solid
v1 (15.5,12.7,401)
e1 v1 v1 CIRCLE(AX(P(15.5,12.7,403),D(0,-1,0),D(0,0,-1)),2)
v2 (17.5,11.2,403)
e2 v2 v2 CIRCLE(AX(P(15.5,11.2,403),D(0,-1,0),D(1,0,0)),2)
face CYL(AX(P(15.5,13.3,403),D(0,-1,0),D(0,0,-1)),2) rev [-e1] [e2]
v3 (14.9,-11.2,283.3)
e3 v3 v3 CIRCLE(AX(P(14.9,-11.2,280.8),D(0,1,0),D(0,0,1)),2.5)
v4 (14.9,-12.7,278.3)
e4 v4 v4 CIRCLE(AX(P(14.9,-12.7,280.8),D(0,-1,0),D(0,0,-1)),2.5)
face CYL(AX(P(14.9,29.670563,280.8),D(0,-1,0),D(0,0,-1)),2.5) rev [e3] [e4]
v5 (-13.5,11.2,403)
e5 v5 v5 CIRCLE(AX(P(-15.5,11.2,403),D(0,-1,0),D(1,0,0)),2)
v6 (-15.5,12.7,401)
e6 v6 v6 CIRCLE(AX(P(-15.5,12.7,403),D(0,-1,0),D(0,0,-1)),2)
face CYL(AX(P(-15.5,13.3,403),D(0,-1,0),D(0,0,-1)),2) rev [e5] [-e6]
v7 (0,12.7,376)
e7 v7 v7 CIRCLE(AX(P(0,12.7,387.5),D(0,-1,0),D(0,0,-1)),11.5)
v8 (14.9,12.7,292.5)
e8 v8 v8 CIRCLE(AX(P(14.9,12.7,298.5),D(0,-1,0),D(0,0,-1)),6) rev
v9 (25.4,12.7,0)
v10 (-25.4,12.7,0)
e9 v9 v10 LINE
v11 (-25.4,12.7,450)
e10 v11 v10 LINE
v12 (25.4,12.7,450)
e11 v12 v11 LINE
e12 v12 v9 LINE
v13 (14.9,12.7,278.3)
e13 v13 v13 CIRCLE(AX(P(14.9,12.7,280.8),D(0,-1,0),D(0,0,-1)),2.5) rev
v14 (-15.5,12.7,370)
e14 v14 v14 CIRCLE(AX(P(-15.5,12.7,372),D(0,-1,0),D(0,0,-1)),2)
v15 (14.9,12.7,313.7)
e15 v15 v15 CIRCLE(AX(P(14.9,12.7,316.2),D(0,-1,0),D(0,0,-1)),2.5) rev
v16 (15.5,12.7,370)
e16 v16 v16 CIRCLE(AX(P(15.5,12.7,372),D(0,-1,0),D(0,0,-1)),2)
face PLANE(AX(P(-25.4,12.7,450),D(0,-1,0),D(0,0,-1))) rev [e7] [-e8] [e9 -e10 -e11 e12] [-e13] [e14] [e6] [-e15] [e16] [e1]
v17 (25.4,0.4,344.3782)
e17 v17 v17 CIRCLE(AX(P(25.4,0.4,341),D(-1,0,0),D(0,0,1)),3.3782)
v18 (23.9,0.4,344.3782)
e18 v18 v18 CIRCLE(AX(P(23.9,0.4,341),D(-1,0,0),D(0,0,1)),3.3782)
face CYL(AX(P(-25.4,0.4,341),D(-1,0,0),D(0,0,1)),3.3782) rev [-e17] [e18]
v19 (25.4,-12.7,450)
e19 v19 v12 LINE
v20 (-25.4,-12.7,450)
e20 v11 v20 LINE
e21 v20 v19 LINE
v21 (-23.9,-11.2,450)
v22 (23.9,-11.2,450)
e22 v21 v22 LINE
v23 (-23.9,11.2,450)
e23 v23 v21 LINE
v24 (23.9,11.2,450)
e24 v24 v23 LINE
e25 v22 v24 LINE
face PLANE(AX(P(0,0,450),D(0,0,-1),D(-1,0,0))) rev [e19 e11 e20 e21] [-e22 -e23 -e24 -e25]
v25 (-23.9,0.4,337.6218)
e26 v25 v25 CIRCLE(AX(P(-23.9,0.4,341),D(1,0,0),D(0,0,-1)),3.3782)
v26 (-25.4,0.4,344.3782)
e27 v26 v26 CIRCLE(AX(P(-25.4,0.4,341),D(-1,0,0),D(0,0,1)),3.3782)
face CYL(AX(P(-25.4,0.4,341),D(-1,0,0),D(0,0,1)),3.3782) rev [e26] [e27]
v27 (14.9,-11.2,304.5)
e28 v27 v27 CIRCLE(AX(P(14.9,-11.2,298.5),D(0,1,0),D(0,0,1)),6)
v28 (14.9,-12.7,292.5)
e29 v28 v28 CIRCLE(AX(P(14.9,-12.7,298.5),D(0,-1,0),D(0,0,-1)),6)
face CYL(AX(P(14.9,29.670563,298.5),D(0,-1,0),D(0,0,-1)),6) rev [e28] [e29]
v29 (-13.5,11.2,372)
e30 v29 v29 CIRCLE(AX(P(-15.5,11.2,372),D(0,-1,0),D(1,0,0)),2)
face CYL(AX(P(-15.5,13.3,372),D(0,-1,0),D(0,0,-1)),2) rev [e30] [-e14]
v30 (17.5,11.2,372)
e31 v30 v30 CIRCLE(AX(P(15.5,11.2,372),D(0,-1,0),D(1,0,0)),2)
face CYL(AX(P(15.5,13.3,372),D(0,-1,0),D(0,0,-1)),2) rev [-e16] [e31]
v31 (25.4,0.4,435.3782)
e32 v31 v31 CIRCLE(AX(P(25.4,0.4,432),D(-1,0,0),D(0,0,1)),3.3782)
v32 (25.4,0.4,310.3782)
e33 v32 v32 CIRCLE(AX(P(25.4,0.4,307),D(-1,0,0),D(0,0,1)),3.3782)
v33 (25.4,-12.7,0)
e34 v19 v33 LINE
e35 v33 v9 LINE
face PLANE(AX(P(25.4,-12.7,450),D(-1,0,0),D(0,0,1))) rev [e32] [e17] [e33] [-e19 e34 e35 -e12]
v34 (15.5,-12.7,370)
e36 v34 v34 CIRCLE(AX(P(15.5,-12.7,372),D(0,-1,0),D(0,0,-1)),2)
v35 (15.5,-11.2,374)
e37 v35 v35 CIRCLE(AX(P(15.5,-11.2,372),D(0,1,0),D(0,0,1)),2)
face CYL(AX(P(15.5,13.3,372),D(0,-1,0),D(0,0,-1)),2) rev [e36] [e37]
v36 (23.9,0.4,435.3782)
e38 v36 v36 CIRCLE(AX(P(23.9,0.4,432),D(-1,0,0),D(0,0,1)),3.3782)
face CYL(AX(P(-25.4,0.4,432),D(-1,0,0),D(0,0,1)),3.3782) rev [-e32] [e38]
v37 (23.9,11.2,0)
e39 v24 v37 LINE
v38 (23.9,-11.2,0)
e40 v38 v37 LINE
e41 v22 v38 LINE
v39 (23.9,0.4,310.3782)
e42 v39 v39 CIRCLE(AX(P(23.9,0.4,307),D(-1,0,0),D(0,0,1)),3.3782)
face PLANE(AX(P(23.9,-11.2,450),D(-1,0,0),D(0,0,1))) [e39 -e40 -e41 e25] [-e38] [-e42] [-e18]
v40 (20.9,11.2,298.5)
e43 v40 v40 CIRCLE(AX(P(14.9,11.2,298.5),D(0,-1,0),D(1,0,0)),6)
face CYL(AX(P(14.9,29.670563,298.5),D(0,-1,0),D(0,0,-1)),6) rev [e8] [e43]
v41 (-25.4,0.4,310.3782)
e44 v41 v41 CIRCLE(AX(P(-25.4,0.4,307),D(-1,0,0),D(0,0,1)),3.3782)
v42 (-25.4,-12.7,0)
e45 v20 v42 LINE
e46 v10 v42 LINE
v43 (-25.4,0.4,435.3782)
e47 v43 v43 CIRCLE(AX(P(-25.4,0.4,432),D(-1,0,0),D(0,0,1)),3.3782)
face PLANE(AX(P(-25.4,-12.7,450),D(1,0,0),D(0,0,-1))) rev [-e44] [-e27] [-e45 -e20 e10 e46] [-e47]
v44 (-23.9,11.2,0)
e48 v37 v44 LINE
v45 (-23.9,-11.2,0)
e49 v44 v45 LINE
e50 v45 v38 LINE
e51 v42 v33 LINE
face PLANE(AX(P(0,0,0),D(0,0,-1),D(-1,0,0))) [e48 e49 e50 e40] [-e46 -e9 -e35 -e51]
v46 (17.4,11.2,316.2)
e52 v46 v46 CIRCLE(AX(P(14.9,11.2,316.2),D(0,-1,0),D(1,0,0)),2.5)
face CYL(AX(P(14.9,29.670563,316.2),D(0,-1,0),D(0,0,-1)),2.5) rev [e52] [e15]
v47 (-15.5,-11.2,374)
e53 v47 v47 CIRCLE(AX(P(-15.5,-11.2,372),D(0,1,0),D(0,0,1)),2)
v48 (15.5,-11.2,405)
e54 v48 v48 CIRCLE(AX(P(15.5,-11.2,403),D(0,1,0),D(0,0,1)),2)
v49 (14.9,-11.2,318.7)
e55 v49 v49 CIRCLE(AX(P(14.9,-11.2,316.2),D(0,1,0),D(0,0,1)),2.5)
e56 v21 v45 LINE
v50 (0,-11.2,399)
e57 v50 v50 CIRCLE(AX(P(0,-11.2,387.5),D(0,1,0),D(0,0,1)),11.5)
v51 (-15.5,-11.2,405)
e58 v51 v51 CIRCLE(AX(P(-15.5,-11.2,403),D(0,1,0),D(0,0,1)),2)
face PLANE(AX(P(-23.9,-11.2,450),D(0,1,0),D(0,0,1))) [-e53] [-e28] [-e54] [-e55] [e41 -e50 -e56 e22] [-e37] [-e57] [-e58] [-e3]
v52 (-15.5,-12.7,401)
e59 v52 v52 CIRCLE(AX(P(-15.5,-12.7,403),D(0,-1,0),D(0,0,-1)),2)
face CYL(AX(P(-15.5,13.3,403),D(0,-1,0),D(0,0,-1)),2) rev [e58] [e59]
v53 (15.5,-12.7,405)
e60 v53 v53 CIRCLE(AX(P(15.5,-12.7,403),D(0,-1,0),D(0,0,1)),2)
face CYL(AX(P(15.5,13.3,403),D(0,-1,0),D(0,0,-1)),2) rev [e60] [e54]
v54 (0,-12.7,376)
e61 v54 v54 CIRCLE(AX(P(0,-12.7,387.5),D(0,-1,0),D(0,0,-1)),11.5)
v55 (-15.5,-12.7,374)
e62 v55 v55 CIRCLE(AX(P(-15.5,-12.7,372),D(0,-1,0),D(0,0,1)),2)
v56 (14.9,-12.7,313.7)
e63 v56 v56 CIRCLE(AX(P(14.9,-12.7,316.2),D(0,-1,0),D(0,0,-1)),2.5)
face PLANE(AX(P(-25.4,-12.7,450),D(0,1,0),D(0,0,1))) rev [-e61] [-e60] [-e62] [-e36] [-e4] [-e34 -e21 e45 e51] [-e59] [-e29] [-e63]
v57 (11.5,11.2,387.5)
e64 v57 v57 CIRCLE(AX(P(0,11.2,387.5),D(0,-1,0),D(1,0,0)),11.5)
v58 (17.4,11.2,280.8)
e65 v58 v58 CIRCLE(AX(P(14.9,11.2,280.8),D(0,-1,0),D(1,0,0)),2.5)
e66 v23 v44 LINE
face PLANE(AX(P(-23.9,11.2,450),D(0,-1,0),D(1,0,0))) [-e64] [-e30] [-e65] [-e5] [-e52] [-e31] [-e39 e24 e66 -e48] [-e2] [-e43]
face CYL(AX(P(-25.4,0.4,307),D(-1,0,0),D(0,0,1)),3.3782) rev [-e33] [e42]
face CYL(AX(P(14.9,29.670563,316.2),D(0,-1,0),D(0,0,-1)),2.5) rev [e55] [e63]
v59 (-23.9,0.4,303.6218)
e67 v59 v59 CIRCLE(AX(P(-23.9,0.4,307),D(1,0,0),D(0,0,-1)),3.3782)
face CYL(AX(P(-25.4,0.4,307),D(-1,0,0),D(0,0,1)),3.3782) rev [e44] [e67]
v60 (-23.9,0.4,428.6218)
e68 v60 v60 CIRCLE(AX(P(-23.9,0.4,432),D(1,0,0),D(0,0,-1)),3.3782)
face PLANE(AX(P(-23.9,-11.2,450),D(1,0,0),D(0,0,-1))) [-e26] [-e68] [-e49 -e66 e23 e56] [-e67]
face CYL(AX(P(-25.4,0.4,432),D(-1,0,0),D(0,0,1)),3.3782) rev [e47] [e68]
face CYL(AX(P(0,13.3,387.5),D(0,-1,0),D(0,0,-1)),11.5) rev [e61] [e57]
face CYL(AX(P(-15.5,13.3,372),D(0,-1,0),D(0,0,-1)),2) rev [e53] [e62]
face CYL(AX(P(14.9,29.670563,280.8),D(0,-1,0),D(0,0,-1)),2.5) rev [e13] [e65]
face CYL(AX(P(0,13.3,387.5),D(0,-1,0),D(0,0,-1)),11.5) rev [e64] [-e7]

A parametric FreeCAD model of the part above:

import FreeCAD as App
import Part
import Sketcher
Q = App.Units.Quantity

doc = App.newDocument("Part")
body = doc.addObject("PartDesign::Body", "Body")

# Sketch on XY plane
sketch1 = body.newObject("Sketcher::SketchObject", "Sketch")
sketch1.AttachmentSupport = (doc.getObject("XY_Plane"), [""])
sketch1.MapMode = "FlatFace"
sketch1.addGeometry([
    Part.LineSegment(App.Vector(-25.4, 12.7, 0), App.Vector(-25.4, -12.7, 0)),  # 0
    Part.LineSegment(App.Vector(-25.4, -12.7, 0), App.Vector(25.4, -12.7, 0)),  # 1
    Part.LineSegment(App.Vector(25.4, -12.7, 0), App.Vector(25.4, 12.7, 0)),  # 2
    Part.LineSegment(App.Vector(25.4, 12.7, 0), App.Vector(-25.4, 12.7, 0)),  # 3
    Part.LineSegment(App.Vector(23.9, -11.2, 0), App.Vector(-23.9, -11.2, 0)),  # 4
    Part.LineSegment(App.Vector(-23.9, -11.2, 0), App.Vector(-23.9, 11.2, 0)),  # 5
    Part.LineSegment(App.Vector(-23.9, 11.2, 0), App.Vector(23.9, 11.2, 0)),  # 6
    Part.LineSegment(App.Vector(23.9, 11.2, 0), App.Vector(23.9, -11.2, 0)),  # 7
], False)
sketch1.addConstraint([
    Sketcher.Constraint("Coincident", 0, 2, 1, 1),
    Sketcher.Constraint("Coincident", 1, 2, 2, 1),
    Sketcher.Constraint("Coincident", 2, 2, 3, 1),
    Sketcher.Constraint("Coincident", 3, 2, 0, 1),
    Sketcher.Constraint("Coincident", 4, 2, 5, 1),
    Sketcher.Constraint("Coincident", 5, 2, 6, 1),
    Sketcher.Constraint("Coincident", 6, 2, 7, 1),
    Sketcher.Constraint("Coincident", 7, 2, 4, 1),
    Sketcher.Constraint("Vertical", 0),
    Sketcher.Constraint("Horizontal", 1),
    Sketcher.Constraint("Vertical", 2),
    Sketcher.Constraint("Horizontal", 3),
    Sketcher.Constraint("Horizontal", 4),
    Sketcher.Constraint("Vertical", 5),
    Sketcher.Constraint("Horizontal", 6),
    Sketcher.Constraint("Vertical", 7),
    Sketcher.Constraint("Symmetric", 0, 2, 2, 2, -1, 1),
    Sketcher.Constraint("Symmetric", 4, 2, 6, 2, -1, 1),
    Sketcher.Constraint("DistanceX", 1, 1, 1, 2, Q("50.8 mm")),
    Sketcher.Constraint("DistanceX", 4, 2, 4, 1, Q("47.8 mm")),
    Sketcher.Constraint("DistanceY", 0, 2, 0, 1, Q("25.4 mm")),
    Sketcher.Constraint("DistanceY", 5, 1, 5, 2, Q("22.4 mm")),
])
pad1 = body.newObject("PartDesign::Pad", "Pad")
pad1.Profile = sketch1
pad1.Length = 450

# Sketch on XZ plane
sketch2 = body.newObject("Sketcher::SketchObject", "Sketch001")
sketch2.AttachmentSupport = (doc.getObject("XZ_Plane"), [""])
sketch2.MapMode = "FlatFace"
sketch2.AttachmentOffset = App.Placement(App.Vector(0, 0, 12.7), App.Rotation())
sketch2.addGeometry([
    Part.Circle(App.Vector(0, 387.5, 0), App.Vector(0, 0, 1), 11.5),  # 0
    Part.Circle(App.Vector(-15.5, 403, 0), App.Vector(0, 0, 1), 2),  # 1
    Part.Circle(App.Vector(15.5, 403, 0), App.Vector(0, 0, 1), 2),  # 2
    Part.Circle(App.Vector(15.5, 372, 0), App.Vector(0, 0, 1), 2),  # 3
    Part.Circle(App.Vector(-15.5, 372, 0), App.Vector(0, 0, 1), 2),  # 4
], False)
sketch2.addConstraint([
    Sketcher.Constraint("Equal", 1, 2),
    Sketcher.Constraint("Equal", 2, 3),
    Sketcher.Constraint("Equal", 3, 4),
    Sketcher.Constraint("Symmetric", 1, 3, 2, 3, -2),
    Sketcher.Constraint("Symmetric", 3, 3, 4, 3, -2),
    Sketcher.Constraint("PointOnObject", 0, 3, -2),
    Sketcher.Constraint("Vertical", 2, 3, 3, 3),
    Sketcher.Constraint("Diameter", 0, Q("23 mm")),
    Sketcher.Constraint("Diameter", 1, Q("4 mm")),
    Sketcher.Constraint("DistanceY", -1, 1, 1, 3, Q("403 mm")),
    Sketcher.Constraint("DistanceY", -1, 1, 3, 3, Q("372 mm")),
    Sketcher.Constraint("DistanceX", 1, 3, 2, 3, Q("31 mm")),
    Sketcher.Constraint("DistanceY", -1, 1, 0, 3, Q("387.5 mm")),
])
pocket1 = body.newObject("PartDesign::Pocket", "Pocket")
pocket1.Profile = sketch2
pocket1.Length = 26

# Sketch on YZ plane
sketch3 = body.newObject("Sketcher::SketchObject", "Sketch002")
sketch3.AttachmentSupport = (doc.getObject("YZ_Plane"), [""])
sketch3.MapMode = "FlatFace"
sketch3.AttachmentOffset = App.Placement(App.Vector(0, 0, -25.4), App.Rotation())
sketch3.addGeometry([
    Part.Circle(App.Vector(0.4, 432, 0), App.Vector(0, 0, 1), 3.3782),  # 0
    Part.Circle(App.Vector(0.4, 341, 0), App.Vector(0, 0, 1), 3.3782),  # 1
    Part.Circle(App.Vector(0.4, 307, 0), App.Vector(0, 0, 1), 3.3782),  # 2
    Part.Circle(App.Vector(-375, 307, 0), App.Vector(0, 0, 1), 3.3782),  # 3
    Part.Circle(App.Vector(-375, 341, 0), App.Vector(0, 0, 1), 3.3782),  # 4
    Part.Circle(App.Vector(-375, 432, 0), App.Vector(0, 0, 1), 3.3782),  # 5
], False)
sketch3.addConstraint([
    Sketcher.Constraint("Equal", 0, 1),
    Sketcher.Constraint("Equal", 1, 2),
    Sketcher.Constraint("Equal", 2, 3),
    Sketcher.Constraint("Equal", 3, 4),
    Sketcher.Constraint("Equal", 4, 5),
    Sketcher.Constraint("Horizontal", 2, 3, 3, 3),
    Sketcher.Constraint("Horizontal", 1, 3, 4, 3),
    Sketcher.Constraint("Horizontal", 0, 3, 5, 3),
    Sketcher.Constraint("Vertical", 0, 3, 1, 3),
    Sketcher.Constraint("Vertical", 1, 3, 2, 3),
    Sketcher.Constraint("Vertical", 3, 3, 4, 3),
    Sketcher.Constraint("Vertical", 4, 3, 5, 3),
    Sketcher.Constraint("DistanceY", -1, 1, 0, 3, Q("432 mm")),
    Sketcher.Constraint("DistanceY", -1, 1, 1, 3, Q("341 mm")),
    Sketcher.Constraint("DistanceY", -1, 1, 2, 3, Q("307 mm")),
    Sketcher.Constraint("DistanceX", 3, 3, -1, 1, Q("375 mm")),
    Sketcher.Constraint("Diameter", 0, Q("6.7564 mm")),
    Sketcher.Constraint("DistanceX", -1, 1, 0, 3, Q("0.4 mm")),
])
doc.recompute()
hole = body.newObject("PartDesign::Hole", "Hole")
hole.Profile = sketch3
hole.ThreadType = "None"
hole.Diameter = 6.7564
hole.DepthType = "ThroughAll"
hole.Reversed = True

# Sketch on XZ plane
sketch4 = body.newObject("Sketcher::SketchObject", "Sketch003")
sketch4.AttachmentSupport = (doc.getObject("XZ_Plane"), [""])
sketch4.MapMode = "FlatFace"
sketch4.AttachmentOffset = App.Placement(App.Vector(0, 0, 12.7), App.Rotation())
sketch4.addGeometry([
    Part.Circle(App.Vector(14.9, 298.5, 0), App.Vector(0, 0, 1), 6),
    Part.Circle(App.Vector(14.9, 316.2, 0), App.Vector(0, 0, 1), 2.5),
    Part.Circle(App.Vector(14.9, 280.8, 0), App.Vector(0, 0, 1), 2.5),
], False)
sketch4.addConstraint([
    Sketcher.Constraint("Equal", 1, 2),
    Sketcher.Constraint("Vertical", 0, 3, 1, 3),
    Sketcher.Constraint("Vertical", 1, 3, 2, 3),
    Sketcher.Constraint("Diameter", 0, Q("12 mm")),
    Sketcher.Constraint("Diameter", 1, Q("5 mm")),
    Sketcher.Constraint("DistanceX", -1, 1, 0, 3, Q("14.9 mm")),
    Sketcher.Constraint("DistanceY", -1, 1, 0, 3, Q("298.5 mm")),
    Sketcher.Constraint("DistanceY", -1, 1, 1, 3, Q("316.2 mm")),
    Sketcher.Constraint("DistanceY", -1, 1, 2, 3, Q("280.8 mm")),
])
pocket2 = body.newObject("PartDesign::Pocket", "Pocket001")
pocket2.Profile = sketch4
pocket2.Length = 25.4

doc.recompute()
